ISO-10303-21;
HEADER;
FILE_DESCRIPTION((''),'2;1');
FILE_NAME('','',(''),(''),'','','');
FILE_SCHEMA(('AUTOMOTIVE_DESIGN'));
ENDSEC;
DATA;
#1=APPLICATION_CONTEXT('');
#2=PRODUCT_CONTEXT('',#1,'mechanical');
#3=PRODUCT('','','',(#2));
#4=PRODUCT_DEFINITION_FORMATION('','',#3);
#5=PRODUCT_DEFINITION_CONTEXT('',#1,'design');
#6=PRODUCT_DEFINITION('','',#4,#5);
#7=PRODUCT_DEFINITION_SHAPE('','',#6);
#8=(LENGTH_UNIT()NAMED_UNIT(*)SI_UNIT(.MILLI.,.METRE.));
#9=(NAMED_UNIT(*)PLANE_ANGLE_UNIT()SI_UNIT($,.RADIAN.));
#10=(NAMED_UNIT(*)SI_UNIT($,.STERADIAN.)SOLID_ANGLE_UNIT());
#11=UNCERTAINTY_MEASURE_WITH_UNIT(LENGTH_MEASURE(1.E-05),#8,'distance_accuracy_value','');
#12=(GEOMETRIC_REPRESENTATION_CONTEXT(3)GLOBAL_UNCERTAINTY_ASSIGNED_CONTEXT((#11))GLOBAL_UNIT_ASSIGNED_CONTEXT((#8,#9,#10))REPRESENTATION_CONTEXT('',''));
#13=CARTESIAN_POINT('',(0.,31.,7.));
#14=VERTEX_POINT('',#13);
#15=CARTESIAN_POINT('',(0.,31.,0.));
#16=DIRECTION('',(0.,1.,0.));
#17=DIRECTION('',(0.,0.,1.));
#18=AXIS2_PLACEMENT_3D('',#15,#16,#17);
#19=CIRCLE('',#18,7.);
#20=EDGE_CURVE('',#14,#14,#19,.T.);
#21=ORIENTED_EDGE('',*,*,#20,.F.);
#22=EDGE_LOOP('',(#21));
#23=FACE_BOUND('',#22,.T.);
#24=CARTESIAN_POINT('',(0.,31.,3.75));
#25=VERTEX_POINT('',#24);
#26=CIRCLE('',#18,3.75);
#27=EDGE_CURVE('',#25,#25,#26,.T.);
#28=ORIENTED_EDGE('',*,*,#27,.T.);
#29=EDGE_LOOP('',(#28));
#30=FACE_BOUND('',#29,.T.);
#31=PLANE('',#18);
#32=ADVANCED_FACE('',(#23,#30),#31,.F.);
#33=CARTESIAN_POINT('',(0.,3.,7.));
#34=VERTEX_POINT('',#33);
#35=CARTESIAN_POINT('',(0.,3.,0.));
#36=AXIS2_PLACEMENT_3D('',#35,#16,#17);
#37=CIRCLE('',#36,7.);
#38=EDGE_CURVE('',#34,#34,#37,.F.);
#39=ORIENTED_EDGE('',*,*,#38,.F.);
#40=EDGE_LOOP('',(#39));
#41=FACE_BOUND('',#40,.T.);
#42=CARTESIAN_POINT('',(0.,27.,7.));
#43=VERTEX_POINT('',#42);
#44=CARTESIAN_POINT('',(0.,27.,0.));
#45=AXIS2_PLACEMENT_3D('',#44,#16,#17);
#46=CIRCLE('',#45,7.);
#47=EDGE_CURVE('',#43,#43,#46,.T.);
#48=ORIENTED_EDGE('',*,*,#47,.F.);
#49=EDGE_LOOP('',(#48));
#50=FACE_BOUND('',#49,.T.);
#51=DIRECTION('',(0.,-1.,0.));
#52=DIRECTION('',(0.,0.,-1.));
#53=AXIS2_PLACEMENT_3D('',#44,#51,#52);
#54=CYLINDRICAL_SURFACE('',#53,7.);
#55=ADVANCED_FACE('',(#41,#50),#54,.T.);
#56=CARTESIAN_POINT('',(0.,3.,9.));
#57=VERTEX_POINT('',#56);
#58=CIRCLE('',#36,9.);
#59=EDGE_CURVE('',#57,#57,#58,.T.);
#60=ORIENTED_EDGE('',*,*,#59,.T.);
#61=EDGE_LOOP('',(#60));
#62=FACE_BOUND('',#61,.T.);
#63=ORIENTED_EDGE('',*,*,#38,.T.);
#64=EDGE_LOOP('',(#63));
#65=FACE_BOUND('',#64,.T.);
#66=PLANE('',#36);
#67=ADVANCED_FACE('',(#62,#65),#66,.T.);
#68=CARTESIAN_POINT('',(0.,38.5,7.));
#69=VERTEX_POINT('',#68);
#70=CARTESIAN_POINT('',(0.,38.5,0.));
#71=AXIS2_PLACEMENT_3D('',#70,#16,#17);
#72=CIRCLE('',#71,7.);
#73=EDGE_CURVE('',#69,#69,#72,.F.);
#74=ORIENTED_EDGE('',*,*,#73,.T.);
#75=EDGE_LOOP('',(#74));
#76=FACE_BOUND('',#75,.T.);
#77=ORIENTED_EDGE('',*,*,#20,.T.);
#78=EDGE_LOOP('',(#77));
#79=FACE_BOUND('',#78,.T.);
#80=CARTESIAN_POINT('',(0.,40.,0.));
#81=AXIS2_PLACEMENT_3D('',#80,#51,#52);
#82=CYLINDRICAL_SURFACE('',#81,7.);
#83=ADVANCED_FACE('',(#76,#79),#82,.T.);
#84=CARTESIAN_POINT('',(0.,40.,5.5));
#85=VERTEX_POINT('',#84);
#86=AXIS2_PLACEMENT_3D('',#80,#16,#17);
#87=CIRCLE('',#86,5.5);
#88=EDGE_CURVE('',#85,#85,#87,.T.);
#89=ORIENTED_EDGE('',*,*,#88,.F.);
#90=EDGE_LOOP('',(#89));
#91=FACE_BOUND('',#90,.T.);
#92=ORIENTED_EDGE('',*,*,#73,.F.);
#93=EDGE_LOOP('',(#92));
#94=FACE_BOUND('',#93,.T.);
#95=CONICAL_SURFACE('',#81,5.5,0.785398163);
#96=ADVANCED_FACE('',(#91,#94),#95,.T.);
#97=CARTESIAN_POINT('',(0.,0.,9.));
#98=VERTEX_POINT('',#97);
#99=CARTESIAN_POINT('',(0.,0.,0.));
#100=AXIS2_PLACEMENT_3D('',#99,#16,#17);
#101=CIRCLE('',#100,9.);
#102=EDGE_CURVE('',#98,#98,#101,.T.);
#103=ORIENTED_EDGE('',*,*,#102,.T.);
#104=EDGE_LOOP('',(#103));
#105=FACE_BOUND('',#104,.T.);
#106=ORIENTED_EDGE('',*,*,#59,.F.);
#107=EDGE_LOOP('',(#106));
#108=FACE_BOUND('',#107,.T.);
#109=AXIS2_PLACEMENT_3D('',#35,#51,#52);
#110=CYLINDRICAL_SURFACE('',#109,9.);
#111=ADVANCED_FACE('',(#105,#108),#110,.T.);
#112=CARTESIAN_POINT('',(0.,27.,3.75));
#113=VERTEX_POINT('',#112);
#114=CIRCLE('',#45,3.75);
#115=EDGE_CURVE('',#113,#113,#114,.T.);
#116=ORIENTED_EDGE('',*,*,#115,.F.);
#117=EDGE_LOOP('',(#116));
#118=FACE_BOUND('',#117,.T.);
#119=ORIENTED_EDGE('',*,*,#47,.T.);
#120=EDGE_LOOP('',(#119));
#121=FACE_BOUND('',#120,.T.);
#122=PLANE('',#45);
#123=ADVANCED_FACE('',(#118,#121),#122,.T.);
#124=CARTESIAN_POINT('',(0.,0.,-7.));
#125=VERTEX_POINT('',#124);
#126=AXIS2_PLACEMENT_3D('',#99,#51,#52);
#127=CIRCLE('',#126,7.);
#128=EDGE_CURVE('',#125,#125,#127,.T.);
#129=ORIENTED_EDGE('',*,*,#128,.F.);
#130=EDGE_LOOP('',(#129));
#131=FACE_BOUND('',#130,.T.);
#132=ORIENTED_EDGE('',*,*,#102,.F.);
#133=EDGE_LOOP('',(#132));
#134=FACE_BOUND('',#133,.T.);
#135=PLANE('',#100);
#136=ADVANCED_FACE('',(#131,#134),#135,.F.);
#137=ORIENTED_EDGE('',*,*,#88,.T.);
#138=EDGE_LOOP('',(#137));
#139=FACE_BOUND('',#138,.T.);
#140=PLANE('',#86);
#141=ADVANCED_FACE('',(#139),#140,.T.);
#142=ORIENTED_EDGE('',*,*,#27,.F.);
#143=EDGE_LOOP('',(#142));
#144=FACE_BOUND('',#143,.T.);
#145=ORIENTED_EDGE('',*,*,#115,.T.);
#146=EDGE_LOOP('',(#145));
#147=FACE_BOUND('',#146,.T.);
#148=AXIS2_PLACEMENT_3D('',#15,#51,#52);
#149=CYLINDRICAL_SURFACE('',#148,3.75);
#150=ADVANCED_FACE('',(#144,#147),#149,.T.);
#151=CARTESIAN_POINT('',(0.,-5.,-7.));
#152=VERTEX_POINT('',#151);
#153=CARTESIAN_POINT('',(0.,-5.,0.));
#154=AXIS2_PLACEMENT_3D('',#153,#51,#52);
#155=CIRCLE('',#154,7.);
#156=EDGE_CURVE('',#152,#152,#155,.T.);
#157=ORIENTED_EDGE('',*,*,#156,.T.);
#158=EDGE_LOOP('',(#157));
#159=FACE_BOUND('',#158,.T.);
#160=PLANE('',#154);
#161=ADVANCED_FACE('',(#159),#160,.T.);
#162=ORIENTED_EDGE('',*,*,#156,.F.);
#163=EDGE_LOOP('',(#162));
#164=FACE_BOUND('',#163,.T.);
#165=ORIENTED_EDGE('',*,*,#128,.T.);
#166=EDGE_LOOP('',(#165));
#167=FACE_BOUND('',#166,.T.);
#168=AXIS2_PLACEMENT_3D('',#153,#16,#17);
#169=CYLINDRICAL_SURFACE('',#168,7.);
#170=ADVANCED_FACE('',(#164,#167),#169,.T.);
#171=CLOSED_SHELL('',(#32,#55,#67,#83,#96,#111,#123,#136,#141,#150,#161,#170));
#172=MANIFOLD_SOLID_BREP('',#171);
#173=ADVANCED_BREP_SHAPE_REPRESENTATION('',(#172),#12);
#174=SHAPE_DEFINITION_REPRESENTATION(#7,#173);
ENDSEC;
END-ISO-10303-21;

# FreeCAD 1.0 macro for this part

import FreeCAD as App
import Part
import Sketcher
from FreeCAD import Vector


def edges_at(feature, points):
    """Names of the edges that pass closest to the given points."""
    edges = feature.Shape.Edges
    near = lambda p: min(range(len(edges)), key=lambda i: edges[i].distToShape(Part.Vertex(*p))[0])
    return sorted({f"Edge{near(p) + 1}" for p in points})

doc = App.newDocument("Part")
body = doc.addObject("PartDesign::Body", "Body")

# Sketch on XZ plane
sketch1 = body.newObject("Sketcher::SketchObject", "Sketch")
sketch1.AttachmentSupport = (doc.getObject("XZ_Plane"), [""])
sketch1.MapMode = "FlatFace"
sketch1.addGeometry(Part.Circle(Vector(0, 0, 0), Vector(0, 0, 1), 9), False)
sketch1.addConstraint(Sketcher.Constraint("Coincident", 0, 3, -1, 1))
sketch1.addConstraint(Sketcher.Constraint("Diameter", 0, 18.0))
pad1 = body.newObject("PartDesign::Pad", "Pad")
pad1.Profile = sketch1
pad1.Length = 3
pad1.Reversed = True

# Sketch on XZ plane
sketch2 = body.newObject("Sketcher::SketchObject", "Sketch001")
sketch2.AttachmentSupport = (doc.getObject("XZ_Plane"), [""])
sketch2.MapMode = "FlatFace"
sketch2.addGeometry(Part.Circle(Vector(0, 0, 0), Vector(0, 0, 1), 7), False)
sketch2.addConstraint(Sketcher.Constraint("Coincident", 0, 3, -1, 1))
sketch2.addConstraint(Sketcher.Constraint("Diameter", 0, 14.0))
pad2 = body.newObject("PartDesign::Pad", "Pad001")
pad2.Profile = sketch2
pad2.Length = 27
pad2.Reversed = True

# Sketch on XZ plane
sketch3 = body.newObject("Sketcher::SketchObject", "Sketch002")
sketch3.AttachmentSupport = (doc.getObject("XZ_Plane"), [""])
sketch3.MapMode = "FlatFace"
sketch3.AttachmentOffset = App.Placement(Vector(0, 0, -27), App.Rotation())
sketch3.addGeometry(Part.Circle(Vector(0, 0, 0), Vector(0, 0, 1), 3.8), False)
sketch3.addConstraint(Sketcher.Constraint("Coincident", 0, 3, -1, 1))
sketch3.addConstraint(Sketcher.Constraint("Diameter", 0, 7.5))
pad3 = body.newObject("PartDesign::Pad", "Pad002")
pad3.Profile = sketch3
pad3.Length = 4
pad3.Reversed = True

# Sketch on XZ plane
sketch4 = body.newObject("Sketcher::SketchObject", "Sketch003")
sketch4.AttachmentSupport = (doc.getObject("XZ_Plane"), [""])
sketch4.MapMode = "FlatFace"
sketch4.AttachmentOffset = App.Placement(Vector(0, 0, -31), App.Rotation())
sketch4.addGeometry(Part.Circle(Vector(0, 0, 0), Vector(0, 0, 1), 7), False)
sketch4.addConstraint(Sketcher.Constraint("Coincident", 0, 3, -1, 1))
sketch4.addConstraint(Sketcher.Constraint("Diameter", 0, 14.0))
pad4 = body.newObject("PartDesign::Pad", "Pad003")
pad4.Profile = sketch4
pad4.Length = 9
pad4.Reversed = True

# Sketch on XZ plane
sketch5 = body.newObject("Sketcher::SketchObject", "Sketch004")
sketch5.AttachmentSupport = (doc.getObject("XZ_Plane"), [""])
sketch5.MapMode = "FlatFace"
sketch5.addGeometry(Part.Circle(Vector(0, 0, 0), Vector(0, 0, 1), 7), False)
sketch5.addConstraint(Sketcher.Constraint("Coincident", 0, 3, -1, 1))
sketch5.addConstraint(Sketcher.Constraint("Diameter", 0, 14.0))
pad5 = body.newObject("PartDesign::Pad", "Pad004")
pad5.Profile = sketch5
pad5.Length = 5
doc.recompute()

chamfer = body.newObject("PartDesign::Chamfer", "Chamfer")
chamfer.Base = (pad5, edges_at(pad5, [(-7, 40, 0)]))
chamfer.Size = 1.5

doc.recompute()
